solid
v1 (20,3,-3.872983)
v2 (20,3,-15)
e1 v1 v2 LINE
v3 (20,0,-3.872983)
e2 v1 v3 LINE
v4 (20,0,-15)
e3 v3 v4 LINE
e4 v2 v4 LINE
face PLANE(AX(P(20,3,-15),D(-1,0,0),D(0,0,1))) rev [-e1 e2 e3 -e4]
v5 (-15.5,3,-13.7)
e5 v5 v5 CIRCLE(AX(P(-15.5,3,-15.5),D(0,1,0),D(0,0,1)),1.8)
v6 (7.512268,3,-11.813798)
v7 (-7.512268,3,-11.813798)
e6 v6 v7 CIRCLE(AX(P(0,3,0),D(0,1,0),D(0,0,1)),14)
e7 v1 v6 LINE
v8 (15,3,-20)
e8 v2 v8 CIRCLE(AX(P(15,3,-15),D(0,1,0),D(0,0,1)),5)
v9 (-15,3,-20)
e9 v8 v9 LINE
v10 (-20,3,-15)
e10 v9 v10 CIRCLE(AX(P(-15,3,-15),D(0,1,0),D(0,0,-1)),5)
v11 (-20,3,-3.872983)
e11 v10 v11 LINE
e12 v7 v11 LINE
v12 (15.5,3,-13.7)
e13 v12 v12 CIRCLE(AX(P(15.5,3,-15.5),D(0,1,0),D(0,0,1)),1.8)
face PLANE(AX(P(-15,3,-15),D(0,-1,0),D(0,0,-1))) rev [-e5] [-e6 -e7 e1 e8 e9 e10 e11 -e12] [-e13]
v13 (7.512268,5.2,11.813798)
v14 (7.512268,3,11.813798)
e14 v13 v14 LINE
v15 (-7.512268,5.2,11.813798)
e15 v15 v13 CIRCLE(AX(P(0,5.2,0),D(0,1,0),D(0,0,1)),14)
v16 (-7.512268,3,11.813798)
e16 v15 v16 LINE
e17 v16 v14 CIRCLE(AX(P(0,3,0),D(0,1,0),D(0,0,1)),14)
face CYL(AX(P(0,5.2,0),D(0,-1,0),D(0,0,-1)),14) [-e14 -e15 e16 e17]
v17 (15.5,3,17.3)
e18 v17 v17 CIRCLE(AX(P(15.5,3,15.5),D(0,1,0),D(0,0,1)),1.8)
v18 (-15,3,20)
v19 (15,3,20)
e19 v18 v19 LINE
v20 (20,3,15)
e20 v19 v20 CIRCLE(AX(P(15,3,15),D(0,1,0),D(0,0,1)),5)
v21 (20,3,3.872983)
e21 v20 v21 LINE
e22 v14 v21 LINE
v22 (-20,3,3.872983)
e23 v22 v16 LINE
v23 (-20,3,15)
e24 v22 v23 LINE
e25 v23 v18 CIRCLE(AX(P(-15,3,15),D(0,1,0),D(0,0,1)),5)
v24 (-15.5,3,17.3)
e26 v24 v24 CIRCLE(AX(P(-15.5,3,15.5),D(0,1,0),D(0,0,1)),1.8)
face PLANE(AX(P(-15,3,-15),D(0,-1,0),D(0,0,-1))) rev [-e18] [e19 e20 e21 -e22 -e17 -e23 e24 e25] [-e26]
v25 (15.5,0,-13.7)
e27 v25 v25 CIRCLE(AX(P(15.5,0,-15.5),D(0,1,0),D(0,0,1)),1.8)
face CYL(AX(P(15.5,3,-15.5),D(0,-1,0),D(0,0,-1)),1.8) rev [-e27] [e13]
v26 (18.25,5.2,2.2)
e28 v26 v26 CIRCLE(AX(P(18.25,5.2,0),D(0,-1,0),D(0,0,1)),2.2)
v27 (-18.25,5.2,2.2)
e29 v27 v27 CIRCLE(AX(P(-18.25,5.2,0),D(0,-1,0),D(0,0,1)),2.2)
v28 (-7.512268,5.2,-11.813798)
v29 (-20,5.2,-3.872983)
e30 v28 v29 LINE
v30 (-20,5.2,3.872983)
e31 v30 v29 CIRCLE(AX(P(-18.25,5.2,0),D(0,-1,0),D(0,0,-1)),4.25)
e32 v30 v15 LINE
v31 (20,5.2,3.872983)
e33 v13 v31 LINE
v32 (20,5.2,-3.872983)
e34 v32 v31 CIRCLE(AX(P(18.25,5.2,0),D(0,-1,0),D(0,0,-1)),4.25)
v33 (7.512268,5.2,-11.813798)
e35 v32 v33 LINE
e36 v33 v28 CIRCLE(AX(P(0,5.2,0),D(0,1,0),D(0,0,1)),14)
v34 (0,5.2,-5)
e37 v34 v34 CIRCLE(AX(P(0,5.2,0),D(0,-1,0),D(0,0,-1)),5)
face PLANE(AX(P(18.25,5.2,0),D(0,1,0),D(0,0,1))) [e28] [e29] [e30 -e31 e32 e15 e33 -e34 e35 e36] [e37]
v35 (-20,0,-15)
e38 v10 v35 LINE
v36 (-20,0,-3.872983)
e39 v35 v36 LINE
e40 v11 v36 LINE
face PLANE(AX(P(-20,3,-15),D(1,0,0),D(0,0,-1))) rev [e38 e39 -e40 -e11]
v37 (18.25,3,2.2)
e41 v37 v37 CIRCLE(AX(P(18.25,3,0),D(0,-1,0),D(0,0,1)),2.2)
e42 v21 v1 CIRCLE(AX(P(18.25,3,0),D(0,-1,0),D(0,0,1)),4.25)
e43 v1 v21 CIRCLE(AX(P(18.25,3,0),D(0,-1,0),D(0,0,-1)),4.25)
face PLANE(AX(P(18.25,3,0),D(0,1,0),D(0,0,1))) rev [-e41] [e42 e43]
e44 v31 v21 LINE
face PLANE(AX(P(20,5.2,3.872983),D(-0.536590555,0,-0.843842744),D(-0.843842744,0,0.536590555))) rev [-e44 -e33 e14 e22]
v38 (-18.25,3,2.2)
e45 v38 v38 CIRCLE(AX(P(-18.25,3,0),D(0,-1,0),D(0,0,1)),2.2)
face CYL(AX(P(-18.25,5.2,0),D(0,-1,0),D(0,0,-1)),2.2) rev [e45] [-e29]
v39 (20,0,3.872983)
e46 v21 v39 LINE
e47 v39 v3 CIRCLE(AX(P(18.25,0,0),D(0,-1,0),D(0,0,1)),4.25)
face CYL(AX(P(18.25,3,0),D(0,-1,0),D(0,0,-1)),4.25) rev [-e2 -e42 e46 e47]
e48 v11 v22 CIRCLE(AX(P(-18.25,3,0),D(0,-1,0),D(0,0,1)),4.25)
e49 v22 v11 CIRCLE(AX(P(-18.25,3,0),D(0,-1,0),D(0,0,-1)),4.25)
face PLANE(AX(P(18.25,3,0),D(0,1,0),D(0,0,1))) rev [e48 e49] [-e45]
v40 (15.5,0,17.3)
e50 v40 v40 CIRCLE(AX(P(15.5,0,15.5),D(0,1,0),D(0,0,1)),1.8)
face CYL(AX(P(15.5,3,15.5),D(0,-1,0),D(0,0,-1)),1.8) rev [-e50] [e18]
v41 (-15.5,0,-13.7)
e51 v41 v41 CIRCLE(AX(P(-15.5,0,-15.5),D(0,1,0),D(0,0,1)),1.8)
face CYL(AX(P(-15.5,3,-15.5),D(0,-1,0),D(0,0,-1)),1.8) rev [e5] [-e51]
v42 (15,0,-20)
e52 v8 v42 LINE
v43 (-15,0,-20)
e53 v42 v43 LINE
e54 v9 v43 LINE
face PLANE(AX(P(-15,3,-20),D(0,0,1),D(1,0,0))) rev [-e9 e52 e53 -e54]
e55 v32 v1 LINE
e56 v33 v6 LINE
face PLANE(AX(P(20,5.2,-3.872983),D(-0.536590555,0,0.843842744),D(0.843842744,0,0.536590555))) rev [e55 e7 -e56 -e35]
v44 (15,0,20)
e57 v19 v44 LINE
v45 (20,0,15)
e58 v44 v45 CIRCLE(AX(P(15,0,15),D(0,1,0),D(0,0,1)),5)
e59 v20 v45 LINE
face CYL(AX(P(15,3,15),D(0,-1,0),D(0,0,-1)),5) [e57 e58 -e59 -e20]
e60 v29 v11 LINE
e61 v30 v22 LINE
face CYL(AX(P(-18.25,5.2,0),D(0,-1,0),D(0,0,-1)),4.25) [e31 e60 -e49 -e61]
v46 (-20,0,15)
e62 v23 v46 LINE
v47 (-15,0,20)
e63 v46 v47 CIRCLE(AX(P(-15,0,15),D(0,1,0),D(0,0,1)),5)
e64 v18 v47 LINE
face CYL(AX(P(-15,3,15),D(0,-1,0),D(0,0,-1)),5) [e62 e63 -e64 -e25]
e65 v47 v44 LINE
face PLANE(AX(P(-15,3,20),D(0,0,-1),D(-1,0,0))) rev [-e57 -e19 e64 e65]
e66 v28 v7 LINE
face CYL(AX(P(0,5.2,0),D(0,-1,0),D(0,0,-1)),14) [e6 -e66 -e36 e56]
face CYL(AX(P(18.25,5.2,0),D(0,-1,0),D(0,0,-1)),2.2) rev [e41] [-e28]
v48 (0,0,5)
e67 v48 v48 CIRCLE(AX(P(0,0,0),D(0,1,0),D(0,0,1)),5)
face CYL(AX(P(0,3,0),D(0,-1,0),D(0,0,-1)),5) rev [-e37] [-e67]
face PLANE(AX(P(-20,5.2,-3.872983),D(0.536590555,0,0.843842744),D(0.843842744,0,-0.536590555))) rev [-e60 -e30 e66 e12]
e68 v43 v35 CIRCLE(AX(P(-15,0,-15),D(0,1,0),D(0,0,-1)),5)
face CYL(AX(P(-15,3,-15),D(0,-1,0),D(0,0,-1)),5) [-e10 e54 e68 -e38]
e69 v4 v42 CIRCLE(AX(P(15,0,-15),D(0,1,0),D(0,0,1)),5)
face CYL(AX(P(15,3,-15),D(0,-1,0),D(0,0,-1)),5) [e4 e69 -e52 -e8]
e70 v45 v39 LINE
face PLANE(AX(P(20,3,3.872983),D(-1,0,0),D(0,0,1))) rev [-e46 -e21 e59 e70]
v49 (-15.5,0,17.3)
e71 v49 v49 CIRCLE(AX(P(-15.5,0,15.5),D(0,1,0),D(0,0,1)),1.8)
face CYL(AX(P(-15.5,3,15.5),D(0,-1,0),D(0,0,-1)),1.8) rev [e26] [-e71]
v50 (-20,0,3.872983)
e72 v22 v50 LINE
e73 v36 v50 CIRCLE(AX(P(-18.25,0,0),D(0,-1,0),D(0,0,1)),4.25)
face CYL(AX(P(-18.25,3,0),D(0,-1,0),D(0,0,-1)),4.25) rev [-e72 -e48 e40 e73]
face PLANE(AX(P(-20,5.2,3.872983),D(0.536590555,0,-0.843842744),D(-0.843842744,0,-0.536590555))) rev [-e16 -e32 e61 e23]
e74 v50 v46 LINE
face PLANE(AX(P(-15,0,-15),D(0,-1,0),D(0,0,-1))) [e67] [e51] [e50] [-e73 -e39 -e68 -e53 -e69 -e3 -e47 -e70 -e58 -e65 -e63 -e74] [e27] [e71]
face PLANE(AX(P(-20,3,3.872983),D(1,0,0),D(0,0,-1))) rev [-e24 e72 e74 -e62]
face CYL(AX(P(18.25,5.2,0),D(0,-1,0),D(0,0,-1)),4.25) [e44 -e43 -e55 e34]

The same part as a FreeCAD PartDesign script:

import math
import FreeCAD as App
import Part
import Sketcher

doc = App.newDocument("Part")
body = doc.addObject("PartDesign::Body", "Body")

sketch1 = body.newObject("Sketcher::SketchObject", "Sketch")
sketch1.AttachmentSupport = (doc.getObject("XZ_Plane"), [""])
sketch1.MapMode = "FlatFace"
sketch1.addGeometry([
    Part.LineSegment(App.Vector(20, 15, 0), App.Vector(20, 3.9, 0)),
    Part.ArcOfCircle(Part.Circle(App.Vector(18.2, 0, 0), App.Vector(0, 0, 1), 4.2), math.radians(66), math.radians(294)),
    Part.LineSegment(App.Vector(20, -3.9, 0), App.Vector(20, -15, 0)),
    Part.ArcOfCircle(Part.Circle(App.Vector(15, -15, 0), App.Vector(0, 0, 1), 5), math.radians(-90), math.radians(0)),
    Part.LineSegment(App.Vector(15, -20, 0), App.Vector(-15, -20, 0)),
    Part.ArcOfCircle(Part.Circle(App.Vector(-15, -15, 0), App.Vector(0, 0, 1), 5), math.radians(180), math.radians(270)),
    Part.LineSegment(App.Vector(-20, -15, 0), App.Vector(-20, -3.9, 0)),
    Part.ArcOfCircle(Part.Circle(App.Vector(-18.2, 0, 0), App.Vector(0, 0, 1), 4.2), math.radians(-114), math.radians(114)),
    Part.LineSegment(App.Vector(-20, 3.9, 0), App.Vector(-20, 15, 0)),
    Part.ArcOfCircle(Part.Circle(App.Vector(-15, 15, 0), App.Vector(0, 0, 1), 5), math.radians(90), math.radians(180)),
    Part.LineSegment(App.Vector(-15, 20, 0), App.Vector(15, 20, 0)),
    Part.ArcOfCircle(Part.Circle(App.Vector(15, 15, 0), App.Vector(0, 0, 1), 5), math.radians(0), math.radians(90)),
    Part.Circle(App.Vector(15.5, 15.5, 0), App.Vector(0, 0, 1), 1.8),
    Part.Circle(App.Vector(-15.5, 15.5, 0), App.Vector(0, 0, 1), 1.8),
    Part.Circle(App.Vector(15.5, -15.5, 0), App.Vector(0, 0, 1), 1.8),
    Part.Circle(App.Vector(0, 0, 0), App.Vector(0, 0, 1), 5),
    Part.Circle(App.Vector(-15.5, -15.5, 0), App.Vector(0, 0, 1), 1.8),
], False)
sketch1.addConstraint([
    Sketcher.Constraint("Coincident", 0, 2, 1, 1),
    Sketcher.Constraint("Coincident", 1, 2, 2, 1),
    Sketcher.Constraint("Tangent", 2, 2, 3, 2),
    Sketcher.Constraint("Tangent", 3, 1, 4, 1),
    Sketcher.Constraint("Tangent", 4, 2, 5, 2),
    Sketcher.Constraint("Tangent", 5, 1, 6, 1),
    Sketcher.Constraint("Coincident", 6, 2, 7, 1),
    Sketcher.Constraint("Coincident", 7, 2, 8, 1),
    Sketcher.Constraint("Tangent", 8, 2, 9, 2),
    Sketcher.Constraint("Tangent", 9, 1, 10, 1),
    Sketcher.Constraint("Tangent", 10, 2, 11, 2),
    Sketcher.Constraint("Tangent", 11, 1, 0, 1),
    Sketcher.Constraint("Vertical", 0),
    Sketcher.Constraint("Vertical", 2),
    Sketcher.Constraint("Horizontal", 4),
    Sketcher.Constraint("Vertical", 6),
    Sketcher.Constraint("Vertical", 8),
    Sketcher.Constraint("Horizontal", 10),
    Sketcher.Constraint("Coincident", 15, 3, -1, 1),
    Sketcher.Constraint("Equal", 3, 5),
    Sketcher.Constraint("Equal", 1, 7),
    Sketcher.Constraint("Equal", 5, 9),
    Sketcher.Constraint("Equal", 9, 11),
    Sketcher.Constraint("Equal", 12, 13),
    Sketcher.Constraint("Equal", 13, 14),
    Sketcher.Constraint("Equal", 11, 15),
    Sketcher.Constraint("Equal", 14, 16),
    Sketcher.Constraint("Symmetric", 1, 3, 7, 3, -1, 1),
    Sketcher.Constraint("Symmetric", 3, 3, 9, 3, -1, 1),
    Sketcher.Constraint("Symmetric", 13, 3, 14, 3, -1, 1),
    Sketcher.Constraint("Symmetric", 12, 3, 16, 3, -1, 1),
    Sketcher.Constraint("Symmetric", 12, 3, 13, 3, -2),
    Sketcher.Constraint("Symmetric", 1, 2, 6, 2, -2),
    Sketcher.Constraint("Horizontal", 0, 2, 7, 2),
    Sketcher.Constraint("Diameter", 15, 10.0),
    Sketcher.Constraint("Diameter", 12, 3.6),
    Sketcher.Constraint("DistanceX", 4, 2, 4, 1, 30.0),
    Sketcher.Constraint("Radius", 1, 4.25),
    Sketcher.Constraint("DistanceY", 3, 3, -1, 1, 15.0),
    Sketcher.Constraint("DistanceX", 13, 3, 12, 3, 31.0),
    Sketcher.Constraint("DistanceY", 14, 3, 12, 3, 31.0),
    Sketcher.Constraint("DistanceX", 7, 3, 1, 3, 36.5),
])
pad1 = body.newObject("PartDesign::Pad", "Pad")
pad1.Profile = sketch1
pad1.Length = 3
pad1.Reversed = True

sketch2 = body.newObject("Sketcher::SketchObject", "Sketch001")
sketch2.AttachmentSupport = (doc.getObject("XZ_Plane"), [""])
sketch2.MapMode = "FlatFace"
sketch2.AttachmentOffset = App.Placement(App.Vector(0, 0, -3), App.Rotation())
sketch2.addGeometry([
    Part.LineSegment(App.Vector(-7.5, -11.8, 0), App.Vector(-20, -3.9, 0)),
    Part.LineSegment(App.Vector(-20, -3.9, 0), App.Vector(-20, -1.3, 0)),
    Part.ArcOfCircle(Part.Circle(App.Vector(-18.2, 0, 0), App.Vector(0, 0, 1), 2.2), math.radians(-143), math.radians(143)),
    Part.LineSegment(App.Vector(-20, 1.3, 0), App.Vector(-20, 3.9, 0)),
    Part.LineSegment(App.Vector(-20, 3.9, 0), App.Vector(-7.5, 11.8, 0)),
    Part.ArcOfCircle(Part.Circle(App.Vector(0, 0, 0), App.Vector(0, 0, 1), 14), math.radians(58), math.radians(122)),
    Part.LineSegment(App.Vector(7.5, 11.8, 0), App.Vector(20, 3.9, 0)),
    Part.LineSegment(App.Vector(20, 3.9, 0), App.Vector(20, 1.3, 0)),
    Part.ArcOfCircle(Part.Circle(App.Vector(18.2, 0, 0), App.Vector(0, 0, 1), 2.2), math.radians(37), math.radians(323)),
    Part.LineSegment(App.Vector(20, -1.3, 0), App.Vector(20, -3.9, 0)),
    Part.LineSegment(App.Vector(20, -3.9, 0), App.Vector(7.5, -11.8, 0)),
    Part.ArcOfCircle(Part.Circle(App.Vector(0, 0, 0), App.Vector(0, 0, 1), 14), math.radians(-122), math.radians(-58)),
], False)
sketch2.addConstraint([
    Sketcher.Constraint("Coincident", 0, 2, 1, 1),
    Sketcher.Constraint("Coincident", 1, 2, 2, 1),
    Sketcher.Constraint("Coincident", 2, 2, 3, 1),
    Sketcher.Constraint("Coincident", 3, 2, 4, 1),
    Sketcher.Constraint("Tangent", 4, 2, 5, 2),
    Sketcher.Constraint("Tangent", 5, 1, 6, 1),
    Sketcher.Constraint("Coincident", 6, 2, 7, 1),
    Sketcher.Constraint("Coincident", 7, 2, 8, 1),
    Sketcher.Constraint("Coincident", 8, 2, 9, 1),
    Sketcher.Constraint("Coincident", 9, 2, 10, 1),
    Sketcher.Constraint("Tangent", 10, 2, 11, 2),
    Sketcher.Constraint("Tangent", 11, 1, 0, 1),
    Sketcher.Constraint("Vertical", 1),
    Sketcher.Constraint("Vertical", 3),
    Sketcher.Constraint("Vertical", 7),
    Sketcher.Constraint("Vertical", 9),
    Sketcher.Constraint("Coincident", 5, 3, -1, 1),
    Sketcher.Constraint("Coincident", 11, 3, -1, 1),
    Sketcher.Constraint("Equal", 2, 8),
    Sketcher.Constraint("Equal", 5, 11),
    Sketcher.Constraint("Symmetric", 2, 3, 8, 3, -1, 1),
    Sketcher.Constraint("Symmetric", 0, 2, 6, 2, -1, 1),
    Sketcher.Constraint("Symmetric", 3, 2, 9, 2, -1, 1),
    Sketcher.Constraint("Symmetric", 3, 2, 6, 2, -2),
    Sketcher.Constraint("PointOnObject", 2, 3, -1),
    Sketcher.Constraint("Radius", 5, 14.0),
    Sketcher.Constraint("Radius", 2, 2.2),
    Sketcher.Constraint("DistanceX", 0, 2, -1, 1, 20.0),
    Sketcher.Constraint("DistanceX", 2, 3, 8, 3, 36.5),
    Sketcher.Constraint("DistanceY", -1, 1, 4, 2, 11.813798),
])
pad2 = body.newObject("PartDesign::Pad", "Pad001")
pad2.Profile = sketch2
pad2.Length = 2.2
pad2.Reversed = True

sketch3 = body.newObject("Sketcher::SketchObject", "Sketch002")
sketch3.AttachmentSupport = (doc.getObject("XZ_Plane"), [""])
sketch3.MapMode = "FlatFace"
sketch3.AttachmentOffset = App.Placement(App.Vector(0, 0, -3), App.Rotation())
sketch3.addGeometry(Part.Circle(App.Vector(0, 0, 0), App.Vector(0, 0, 1), 5), False)
sketch3.addConstraint([
    Sketcher.Constraint("Coincident", 0, 3, -1, 1),
    Sketcher.Constraint("Diameter", 0, 10.0),
])
pocket1 = body.newObject("PartDesign::Pocket", "Pocket")
pocket1.Profile = sketch3
pocket1.Length = 2.2

sketch4 = body.newObject("Sketcher::SketchObject", "Sketch003")
sketch4.AttachmentSupport = (doc.getObject("XZ_Plane"), [""])
sketch4.MapMode = "FlatFace"
sketch4.AttachmentOffset = App.Placement(App.Vector(0, 0, -3), App.Rotation())
sketch4.addGeometry([
    Part.LineSegment(App.Vector(20, 3.9, 0), App.Vector(20, 1.3, 0)),
    Part.ArcOfCircle(Part.Circle(App.Vector(18.2, 0, 0), App.Vector(0, 0, 1), 2.2), math.radians(-37), math.radians(37)),
    Part.LineSegment(App.Vector(20, -1.3, 0), App.Vector(20, -3.9, 0)),
    Part.ArcOfCircle(Part.Circle(App.Vector(18.2, 0, 0), App.Vector(0, 0, 1), 4.2), math.radians(-66), math.radians(66)),
], False)
sketch4.addConstraint([
    Sketcher.Constraint("Coincident", 0, 2, 1, 2),
    Sketcher.Constraint("Coincident", 1, 1, 2, 1),
    Sketcher.Constraint("Coincident", 2, 2, 3, 1),
    Sketcher.Constraint("Coincident", 3, 2, 0, 1),
    Sketcher.Constraint("Vertical", 0),
    Sketcher.Constraint("Vertical", 2),
    Sketcher.Constraint("Coincident", 3, 3, 1, 3),
    Sketcher.Constraint("Symmetric", 0, 2, 1, 1, -1),
    Sketcher.Constraint("Radius", 1, 2.2),
    Sketcher.Constraint("Radius", 3, 4.25),
    Sketcher.Constraint("DistanceX", -1, 1, 0, 2, 20.0),
    Sketcher.Constraint("DistanceX", -1, 1, 1, 3, 18.25),
])
pad3 = body.newObject("PartDesign::Pad", "Pad002")
pad3.Profile = sketch4
pad3.Length = 2.2
pad3.Reversed = True

sketch5 = body.newObject("Sketcher::SketchObject", "Sketch004")
sketch5.AttachmentSupport = (doc.getObject("XZ_Plane"), [""])
sketch5.MapMode = "FlatFace"
sketch5.AttachmentOffset = App.Placement(App.Vector(0, 0, -3), App.Rotation())
sketch5.addGeometry([
    Part.LineSegment(App.Vector(-20, 1.3, 0), App.Vector(-20, 3.9, 0)),
    Part.ArcOfCircle(Part.Circle(App.Vector(-18.2, 0, 0), App.Vector(0, 0, 1), 4.2), math.radians(114), math.radians(246)),
    Part.LineSegment(App.Vector(-20, -3.9, 0), App.Vector(-20, -1.3, 0)),
    Part.ArcOfCircle(Part.Circle(App.Vector(-18.2, 0, 0), App.Vector(0, 0, 1), 2.2), math.radians(143), math.radians(217)),
], False)
sketch5.addConstraint([
    Sketcher.Constraint("Coincident", 0, 2, 1, 1),
    Sketcher.Constraint("Coincident", 1, 2, 2, 1),
    Sketcher.Constraint("Coincident", 2, 2, 3, 2),
    Sketcher.Constraint("Coincident", 3, 1, 0, 1),
    Sketcher.Constraint("Vertical", 0),
    Sketcher.Constraint("Vertical", 2),
    Sketcher.Constraint("Coincident", 3, 3, 1, 3),
    Sketcher.Constraint("Symmetric", 0, 2, 1, 2, -1),
    Sketcher.Constraint("Radius", 3, 2.2),
    Sketcher.Constraint("Radius", 1, 4.25),
    Sketcher.Constraint("DistanceX", 0, 2, -1, 1, 20.0),
    Sketcher.Constraint("DistanceX", 1, 3, -1, 1, 18.25),
])
pad4 = body.newObject("PartDesign::Pad", "Pad003")
pad4.Profile = sketch5
pad4.Length = 2.2
pad4.Reversed = True

doc.recompute()
